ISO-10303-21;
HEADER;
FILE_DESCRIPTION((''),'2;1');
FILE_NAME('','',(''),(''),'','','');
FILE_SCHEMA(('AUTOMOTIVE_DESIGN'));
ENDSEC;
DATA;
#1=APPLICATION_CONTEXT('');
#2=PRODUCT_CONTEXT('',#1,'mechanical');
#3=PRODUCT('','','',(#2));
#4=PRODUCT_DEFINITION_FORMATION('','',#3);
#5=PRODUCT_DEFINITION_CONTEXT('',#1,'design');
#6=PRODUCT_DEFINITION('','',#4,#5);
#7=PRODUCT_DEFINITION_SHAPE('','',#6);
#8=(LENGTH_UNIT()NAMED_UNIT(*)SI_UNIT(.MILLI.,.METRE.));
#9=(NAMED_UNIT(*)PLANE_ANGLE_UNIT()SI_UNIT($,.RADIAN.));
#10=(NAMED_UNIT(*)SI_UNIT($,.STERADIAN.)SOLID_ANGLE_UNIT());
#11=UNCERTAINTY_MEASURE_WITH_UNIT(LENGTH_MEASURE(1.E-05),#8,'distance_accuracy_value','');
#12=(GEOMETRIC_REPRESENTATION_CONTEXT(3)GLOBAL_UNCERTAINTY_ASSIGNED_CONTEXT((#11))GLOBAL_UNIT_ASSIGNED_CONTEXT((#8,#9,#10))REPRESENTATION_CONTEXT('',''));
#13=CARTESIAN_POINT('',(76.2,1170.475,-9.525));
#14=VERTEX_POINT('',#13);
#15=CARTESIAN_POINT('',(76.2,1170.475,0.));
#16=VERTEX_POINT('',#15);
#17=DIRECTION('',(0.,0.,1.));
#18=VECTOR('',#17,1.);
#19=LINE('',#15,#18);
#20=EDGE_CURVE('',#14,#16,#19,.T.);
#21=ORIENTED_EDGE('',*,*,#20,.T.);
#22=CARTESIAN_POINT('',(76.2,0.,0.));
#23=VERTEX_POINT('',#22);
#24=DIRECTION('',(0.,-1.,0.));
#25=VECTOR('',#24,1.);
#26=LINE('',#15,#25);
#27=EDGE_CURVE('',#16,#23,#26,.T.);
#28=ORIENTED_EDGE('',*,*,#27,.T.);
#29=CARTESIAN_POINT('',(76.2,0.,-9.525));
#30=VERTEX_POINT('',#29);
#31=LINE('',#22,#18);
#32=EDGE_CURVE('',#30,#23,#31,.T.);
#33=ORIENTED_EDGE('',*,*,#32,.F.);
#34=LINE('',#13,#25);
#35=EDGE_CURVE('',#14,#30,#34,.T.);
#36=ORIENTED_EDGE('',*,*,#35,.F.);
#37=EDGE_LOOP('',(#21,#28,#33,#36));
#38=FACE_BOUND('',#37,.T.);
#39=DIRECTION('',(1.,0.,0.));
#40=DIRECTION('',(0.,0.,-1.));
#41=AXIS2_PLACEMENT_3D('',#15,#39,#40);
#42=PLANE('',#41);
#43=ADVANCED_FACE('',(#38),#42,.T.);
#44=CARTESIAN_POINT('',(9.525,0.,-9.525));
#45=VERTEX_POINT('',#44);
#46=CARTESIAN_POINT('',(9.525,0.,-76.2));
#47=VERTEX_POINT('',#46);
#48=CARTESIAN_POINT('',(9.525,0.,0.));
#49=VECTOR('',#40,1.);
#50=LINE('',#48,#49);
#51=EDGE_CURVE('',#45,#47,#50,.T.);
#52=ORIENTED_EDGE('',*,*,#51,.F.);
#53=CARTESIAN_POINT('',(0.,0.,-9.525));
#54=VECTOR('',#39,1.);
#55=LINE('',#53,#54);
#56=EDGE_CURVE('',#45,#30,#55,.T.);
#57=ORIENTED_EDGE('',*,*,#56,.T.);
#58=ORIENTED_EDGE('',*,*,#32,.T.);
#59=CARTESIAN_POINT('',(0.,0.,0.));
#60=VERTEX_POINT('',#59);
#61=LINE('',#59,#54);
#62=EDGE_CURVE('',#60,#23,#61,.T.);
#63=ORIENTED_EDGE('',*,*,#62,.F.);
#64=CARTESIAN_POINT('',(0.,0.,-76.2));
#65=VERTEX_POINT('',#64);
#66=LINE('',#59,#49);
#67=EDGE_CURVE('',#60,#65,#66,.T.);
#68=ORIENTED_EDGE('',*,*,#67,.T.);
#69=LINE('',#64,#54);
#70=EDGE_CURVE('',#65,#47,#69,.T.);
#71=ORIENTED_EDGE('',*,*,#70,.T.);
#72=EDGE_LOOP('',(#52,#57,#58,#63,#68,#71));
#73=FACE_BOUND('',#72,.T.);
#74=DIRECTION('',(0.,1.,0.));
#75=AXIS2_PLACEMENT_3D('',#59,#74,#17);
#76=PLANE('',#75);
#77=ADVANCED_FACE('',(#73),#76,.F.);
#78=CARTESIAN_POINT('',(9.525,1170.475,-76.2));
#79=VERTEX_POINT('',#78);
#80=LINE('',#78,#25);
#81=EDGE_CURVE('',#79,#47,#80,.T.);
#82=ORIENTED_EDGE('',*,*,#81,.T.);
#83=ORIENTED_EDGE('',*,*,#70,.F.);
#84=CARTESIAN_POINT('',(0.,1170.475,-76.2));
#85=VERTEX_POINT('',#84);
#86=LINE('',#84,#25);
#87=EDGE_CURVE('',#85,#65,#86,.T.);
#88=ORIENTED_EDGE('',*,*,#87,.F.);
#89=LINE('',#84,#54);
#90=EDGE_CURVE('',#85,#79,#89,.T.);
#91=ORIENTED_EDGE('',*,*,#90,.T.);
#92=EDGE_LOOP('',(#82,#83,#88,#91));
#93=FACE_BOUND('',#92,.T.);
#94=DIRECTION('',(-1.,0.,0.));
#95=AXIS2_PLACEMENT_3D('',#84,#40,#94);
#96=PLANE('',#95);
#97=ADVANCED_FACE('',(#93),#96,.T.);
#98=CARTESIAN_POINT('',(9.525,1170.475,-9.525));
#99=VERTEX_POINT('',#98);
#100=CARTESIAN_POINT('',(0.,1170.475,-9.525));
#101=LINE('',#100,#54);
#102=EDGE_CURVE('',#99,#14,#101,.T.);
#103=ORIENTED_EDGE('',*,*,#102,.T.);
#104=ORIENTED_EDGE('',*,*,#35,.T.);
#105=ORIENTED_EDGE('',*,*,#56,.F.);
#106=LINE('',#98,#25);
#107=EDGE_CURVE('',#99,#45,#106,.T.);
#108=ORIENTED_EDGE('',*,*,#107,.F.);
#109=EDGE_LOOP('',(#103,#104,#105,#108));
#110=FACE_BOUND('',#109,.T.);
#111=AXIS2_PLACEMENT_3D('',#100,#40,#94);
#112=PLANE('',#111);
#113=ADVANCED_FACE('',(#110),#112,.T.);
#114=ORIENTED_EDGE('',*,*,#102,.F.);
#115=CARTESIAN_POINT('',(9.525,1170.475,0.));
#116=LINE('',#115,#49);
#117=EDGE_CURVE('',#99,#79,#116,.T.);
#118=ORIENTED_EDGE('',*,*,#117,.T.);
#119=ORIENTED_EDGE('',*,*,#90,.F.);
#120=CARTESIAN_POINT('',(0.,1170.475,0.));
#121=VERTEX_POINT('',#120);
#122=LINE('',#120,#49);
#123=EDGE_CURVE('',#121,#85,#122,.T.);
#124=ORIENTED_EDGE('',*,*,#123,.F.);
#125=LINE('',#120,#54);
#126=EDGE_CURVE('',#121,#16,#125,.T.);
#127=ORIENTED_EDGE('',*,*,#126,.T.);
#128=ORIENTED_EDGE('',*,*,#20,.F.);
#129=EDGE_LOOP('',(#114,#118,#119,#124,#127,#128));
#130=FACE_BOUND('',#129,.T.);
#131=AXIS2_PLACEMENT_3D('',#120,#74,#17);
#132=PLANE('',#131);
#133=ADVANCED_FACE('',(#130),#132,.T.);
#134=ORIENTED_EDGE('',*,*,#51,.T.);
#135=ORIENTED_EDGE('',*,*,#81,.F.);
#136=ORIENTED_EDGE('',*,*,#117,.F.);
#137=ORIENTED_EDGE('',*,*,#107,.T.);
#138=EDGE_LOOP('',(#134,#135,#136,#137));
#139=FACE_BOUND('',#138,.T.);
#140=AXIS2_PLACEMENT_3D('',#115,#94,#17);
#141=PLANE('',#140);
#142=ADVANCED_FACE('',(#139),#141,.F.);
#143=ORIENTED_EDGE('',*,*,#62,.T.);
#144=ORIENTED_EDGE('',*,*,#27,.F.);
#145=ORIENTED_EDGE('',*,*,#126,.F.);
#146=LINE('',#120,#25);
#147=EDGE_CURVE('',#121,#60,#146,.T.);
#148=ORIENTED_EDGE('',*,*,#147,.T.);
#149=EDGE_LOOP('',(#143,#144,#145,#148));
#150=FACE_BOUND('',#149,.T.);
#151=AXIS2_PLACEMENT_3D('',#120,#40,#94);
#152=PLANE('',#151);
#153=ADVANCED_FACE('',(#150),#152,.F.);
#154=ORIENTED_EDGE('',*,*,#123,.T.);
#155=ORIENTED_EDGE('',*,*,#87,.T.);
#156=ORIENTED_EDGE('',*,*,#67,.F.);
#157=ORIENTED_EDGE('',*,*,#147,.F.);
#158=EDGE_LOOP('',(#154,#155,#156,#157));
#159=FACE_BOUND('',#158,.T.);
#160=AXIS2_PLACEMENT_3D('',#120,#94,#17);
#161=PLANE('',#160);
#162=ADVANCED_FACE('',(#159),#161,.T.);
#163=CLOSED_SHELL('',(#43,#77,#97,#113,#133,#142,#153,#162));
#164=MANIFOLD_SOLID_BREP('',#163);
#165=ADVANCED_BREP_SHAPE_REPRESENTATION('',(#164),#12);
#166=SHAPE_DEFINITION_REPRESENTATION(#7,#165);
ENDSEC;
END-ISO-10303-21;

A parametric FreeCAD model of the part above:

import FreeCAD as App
import Part
import Sketcher
from FreeCAD import Vector
Q = App.Units.Quantity

doc = App.newDocument("Part")
body = doc.addObject("PartDesign::Body", "Body")

# Sketch on XZ plane
sketch1 = body.newObject("Sketcher::SketchObject", "Sketch")
sketch1.AttachmentSupport = (doc.getObject("XZ_Plane"), [""])
sketch1.MapMode = "FlatFace"
sketch1.addGeometry([
    Part.LineSegment(Vector(76, 0, 0), Vector(76, -10, 0)),  # 0
    Part.LineSegment(Vector(76, -10, 0), Vector(10, -10, 0)),  # 1
    Part.LineSegment(Vector(10, -10, 0), Vector(10, -76, 0)),  # 2
    Part.LineSegment(Vector(10, -76, 0), Vector(0, -76, 0)),  # 3
    Part.LineSegment(Vector(0, -76, 0), Vector(0, 0, 0)),  # 4
    Part.LineSegment(Vector(0, 0, 0), Vector(76, 0, 0)),  # 5
], False)
sketch1.addConstraint([
    Sketcher.Constraint("Coincident", 0, 2, 1, 1),
    Sketcher.Constraint("Coincident", 1, 2, 2, 1),
    Sketcher.Constraint("Coincident", 2, 2, 3, 1),
    Sketcher.Constraint("Coincident", 3, 2, 4, 1),
    Sketcher.Constraint("Coincident", 4, 2, 5, 1),
    Sketcher.Constraint("Coincident", 5, 2, 0, 1),
    Sketcher.Constraint("Vertical", 0),
    Sketcher.Constraint("Horizontal", 1),
    Sketcher.Constraint("Vertical", 2),
    Sketcher.Constraint("Horizontal", 3),
    Sketcher.Constraint("Vertical", 4),
    Sketcher.Constraint("Horizontal", 5),
    Sketcher.Constraint("Coincident", 4, 2, -1, 1),
    Sketcher.Constraint("Equal", 3, 0),
    Sketcher.Constraint("Equal", 1, 2),
    Sketcher.Constraint("DistanceX", 5, 1, 5, 2, Q("3 in")),
    Sketcher.Constraint("DistanceX", 1, 2, 1, 1, Q("2.625 in")),
])
pad1 = body.newObject("PartDesign::Pad", "Pad")
pad1.Profile = sketch1
pad1.Length = 1170.475
pad1.Reversed = True

doc.recompute()
